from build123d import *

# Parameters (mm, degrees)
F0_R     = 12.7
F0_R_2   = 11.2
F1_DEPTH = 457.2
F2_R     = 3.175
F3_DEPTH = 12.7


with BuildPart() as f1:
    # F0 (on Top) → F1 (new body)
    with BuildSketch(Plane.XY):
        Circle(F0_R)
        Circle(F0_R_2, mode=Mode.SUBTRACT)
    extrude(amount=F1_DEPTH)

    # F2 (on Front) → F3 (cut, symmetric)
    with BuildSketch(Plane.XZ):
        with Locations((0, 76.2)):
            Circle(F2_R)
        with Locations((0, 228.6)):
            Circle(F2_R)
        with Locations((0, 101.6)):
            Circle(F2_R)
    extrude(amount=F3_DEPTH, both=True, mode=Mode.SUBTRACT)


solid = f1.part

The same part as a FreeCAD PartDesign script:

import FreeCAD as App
import Part
import Sketcher
from FreeCAD import Vector
Q = App.Units.Quantity

doc = App.newDocument("Part")
body = doc.addObject("PartDesign::Body", "Body")

sketch1 = body.newObject("Sketcher::SketchObject", "Sketch")
sketch1.AttachmentSupport = (doc.getObject("XY_Plane"), [""])
sketch1.MapMode = "FlatFace"
sketch1.addGeometry([
    Part.Circle(Vector(0, 0, 0), Vector(0, 0, 1), 13),
    Part.Circle(Vector(0, 0, 0), Vector(0, 0, 1), 11),
], False)
sketch1.addConstraint([
    Sketcher.Constraint("Coincident", 0, 3, -1, 1),
    Sketcher.Constraint("Coincident", 1, 3, -1, 1),
    Sketcher.Constraint("Diameter", 0, Q("1 in")),
    Sketcher.Constraint("Diameter", 1, 22.4),
])
pad1 = body.newObject("PartDesign::Pad", "Pad")
pad1.Profile = sketch1
pad1.Length = Q("18 in")

sketch2 = body.newObject("Sketcher::SketchObject", "Sketch001")
sketch2.AttachmentSupport = (doc.getObject("XZ_Plane"), [""])
sketch2.MapMode = "FlatFace"
sketch2.addGeometry([
    Part.Circle(Vector(0, 76.2, 0), Vector(0, 0, 1), 3.2),
    Part.Circle(Vector(0, 228.6, 0), Vector(0, 0, 1), 3.2),
    Part.Circle(Vector(0, 101.6, 0), Vector(0, 0, 1), 3.2),
], False)
sketch2.addConstraint([
    Sketcher.Constraint("Equal", 0, 1),
    Sketcher.Constraint("Equal", 1, 2),
    Sketcher.Constraint("PointOnObject", 0, 3, -2),
    Sketcher.Constraint("PointOnObject", 1, 3, -2),
    Sketcher.Constraint("PointOnObject", 2, 3, -2),
    Sketcher.Constraint("Diameter", 0, Q("0.25 in")),
    Sketcher.Constraint("DistanceY", -1, 1, 0, 3, Q("3 in")),
    Sketcher.Constraint("DistanceY", -1, 1, 1, 3, Q("9 in")),
    Sketcher.Constraint("DistanceY", -1, 1, 2, 3, Q("4 in")),
])
pocket1 = body.newObject("PartDesign::Pocket", "Pocket")
pocket1.Profile = sketch2
pocket1.Length = Q("1 in")
pocket1.Midplane = True

doc.recompute()
